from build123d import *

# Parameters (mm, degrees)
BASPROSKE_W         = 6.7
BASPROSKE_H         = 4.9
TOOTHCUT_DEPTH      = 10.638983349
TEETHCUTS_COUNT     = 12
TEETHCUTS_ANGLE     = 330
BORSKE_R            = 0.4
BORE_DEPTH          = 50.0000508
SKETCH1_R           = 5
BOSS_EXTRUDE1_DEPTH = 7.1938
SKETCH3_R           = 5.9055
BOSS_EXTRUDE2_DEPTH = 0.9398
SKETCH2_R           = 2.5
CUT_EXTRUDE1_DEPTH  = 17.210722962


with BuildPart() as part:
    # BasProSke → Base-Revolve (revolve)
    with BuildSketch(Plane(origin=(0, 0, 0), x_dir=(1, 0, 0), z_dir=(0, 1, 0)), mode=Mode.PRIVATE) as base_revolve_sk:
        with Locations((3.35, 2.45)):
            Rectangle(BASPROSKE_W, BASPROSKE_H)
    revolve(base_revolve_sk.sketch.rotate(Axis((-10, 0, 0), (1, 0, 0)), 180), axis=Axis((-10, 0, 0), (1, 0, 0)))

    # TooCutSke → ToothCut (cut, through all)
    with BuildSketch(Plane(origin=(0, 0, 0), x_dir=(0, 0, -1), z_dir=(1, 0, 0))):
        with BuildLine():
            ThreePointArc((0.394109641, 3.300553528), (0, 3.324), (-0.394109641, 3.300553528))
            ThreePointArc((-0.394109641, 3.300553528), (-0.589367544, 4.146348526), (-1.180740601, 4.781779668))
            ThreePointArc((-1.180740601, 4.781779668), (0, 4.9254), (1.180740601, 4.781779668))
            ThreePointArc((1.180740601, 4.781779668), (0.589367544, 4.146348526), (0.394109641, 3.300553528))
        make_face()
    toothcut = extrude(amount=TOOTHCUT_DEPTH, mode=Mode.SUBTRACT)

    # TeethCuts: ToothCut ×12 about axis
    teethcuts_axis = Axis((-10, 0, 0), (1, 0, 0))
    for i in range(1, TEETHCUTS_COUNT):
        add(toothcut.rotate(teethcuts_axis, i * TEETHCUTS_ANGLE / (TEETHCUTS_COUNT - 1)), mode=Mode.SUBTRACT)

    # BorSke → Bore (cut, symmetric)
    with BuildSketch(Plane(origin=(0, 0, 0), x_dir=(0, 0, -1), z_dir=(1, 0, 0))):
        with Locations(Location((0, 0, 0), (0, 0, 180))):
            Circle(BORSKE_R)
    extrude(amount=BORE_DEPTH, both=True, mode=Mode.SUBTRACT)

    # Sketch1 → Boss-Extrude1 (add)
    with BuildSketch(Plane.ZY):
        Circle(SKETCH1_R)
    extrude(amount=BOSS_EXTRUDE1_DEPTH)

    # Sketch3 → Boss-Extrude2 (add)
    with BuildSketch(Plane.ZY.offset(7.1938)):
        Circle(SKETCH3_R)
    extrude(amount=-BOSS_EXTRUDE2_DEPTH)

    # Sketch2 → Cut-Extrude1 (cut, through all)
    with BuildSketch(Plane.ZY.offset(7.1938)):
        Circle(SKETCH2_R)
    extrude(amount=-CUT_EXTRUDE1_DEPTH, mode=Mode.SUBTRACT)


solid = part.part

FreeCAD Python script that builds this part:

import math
import FreeCAD as App
import Part
import Sketcher

doc = App.newDocument("Part")
body = doc.addObject("PartDesign::Body", "Body")

# Sketch on XZ plane
sketch1 = body.newObject("Sketcher::SketchObject", "Sketch")
sketch1.AttachmentSupport = (doc.getObject("XZ_Plane"), [""])
sketch1.MapMode = "FlatFace"
sketch1.addGeometry([
    Part.LineSegment(App.Vector(0, -4.9, 0), App.Vector(0, 0, 0)),
    Part.LineSegment(App.Vector(0, 0, 0), App.Vector(6.7, 0, 0)),
    Part.LineSegment(App.Vector(6.7, 0, 0), App.Vector(6.7, -4.9, 0)),
    Part.LineSegment(App.Vector(6.7, -4.9, 0), App.Vector(0, -4.9, 0)),
], False)
sketch1.addConstraint([
    Sketcher.Constraint("Coincident", 0, 2, 1, 1),
    Sketcher.Constraint("Coincident", 1, 2, 2, 1),
    Sketcher.Constraint("Coincident", 2, 2, 3, 1),
    Sketcher.Constraint("Coincident", 3, 2, 0, 1),
    Sketcher.Constraint("Vertical", 0),
    Sketcher.Constraint("Horizontal", 1),
    Sketcher.Constraint("Vertical", 2),
    Sketcher.Constraint("Horizontal", 3),
    Sketcher.Constraint("Coincident", 0, 2, -1, 1),
    Sketcher.Constraint("DistanceX", 1, 1, 1, 2, 6.7),
    Sketcher.Constraint("DistanceY", 0, 1, 0, 2, 4.9),
])
revolution = body.newObject("PartDesign::Revolution", "Revolution")
revolution.Profile = sketch1
revolution.ReferenceAxis = (sketch1, ["H_Axis"])
revolution.Angle = 360

# Sketch on YZ plane
sketch2 = body.newObject("Sketcher::SketchObject", "Sketch001")
sketch2.AttachmentSupport = (doc.getObject("YZ_Plane"), [""])
sketch2.MapMode = "FlatFace"
sketch2.addGeometry([
    Part.ArcOfCircle(Part.Circle(App.Vector(0, 0, 0), App.Vector(0, 0, 1), 3.3), math.radians(-6.81), math.radians(6.81)),
    Part.ArcOfCircle(Part.Circle(App.Vector(3.4, -2.1, 0), App.Vector(0, 0, 1), 1.7), math.radians(32), math.radians(92)),
    Part.ArcOfCircle(Part.Circle(App.Vector(0, 0, 0), App.Vector(0, 0, 1), 4.9), math.radians(-14), math.radians(14)),
    Part.ArcOfCircle(Part.Circle(App.Vector(3.4, 2.1, 0), App.Vector(0, 0, 1), 1.7), math.radians(-92), math.radians(-32)),
], False)
sketch2.addConstraint([
    Sketcher.Constraint("Coincident", 0, 1, 1, 2),
    Sketcher.Constraint("Coincident", 1, 1, 2, 1),
    Sketcher.Constraint("Coincident", 2, 2, 3, 2),
    Sketcher.Constraint("Coincident", 3, 1, 0, 2),
    Sketcher.Constraint("Coincident", 0, 3, -1, 1),
    Sketcher.Constraint("Coincident", 2, 3, -1, 1),
    Sketcher.Constraint("Equal", 1, 3),
    Sketcher.Constraint("Symmetric", 1, 3, 3, 3, -1),
    Sketcher.Constraint("Radius", 1, 1.68),
    Sketcher.Constraint("Radius", 0, 3.324),
    Sketcher.Constraint("Radius", 2, 4.9254),
    Sketcher.Constraint("DistanceX", 1, 3, 1, 1, 1.423401),
    Sketcher.Constraint("DistanceX", -1, 1, 1, 3, 3.358379),
])
pocket1 = body.newObject("PartDesign::Pocket", "Pocket")
pocket1.Profile = sketch2
pocket1.Type = "ThroughAll"
pocket1.Reversed = True
doc.recompute()

polarpattern = body.newObject("PartDesign::PolarPattern", "PolarPattern")
polarpattern.Originals = [pocket1]
polarpattern.Axis = (doc.getObject("X_Axis"), [""])
polarpattern.Angle = 360
polarpattern.Occurrences = 12
body.Tip = polarpattern

# Sketch on YZ plane
sketch3 = body.newObject("Sketcher::SketchObject", "Sketch002")
sketch3.AttachmentSupport = (doc.getObject("YZ_Plane"), [""])
sketch3.MapMode = "FlatFace"
sketch3.addGeometry(Part.Circle(App.Vector(0, 0, 0), App.Vector(0, 0, 1), 0.4), False)
sketch3.addConstraint([
    Sketcher.Constraint("Coincident", 0, 3, -1, 1),
    Sketcher.Constraint("Diameter", 0, 0.8),
])
pocket2 = body.newObject("PartDesign::Pocket", "Pocket001")
pocket2.Profile = sketch3
pocket2.Length = 100.000102
pocket2.Midplane = True

# Sketch on YZ plane
sketch4 = body.newObject("Sketcher::SketchObject", "Sketch003")
sketch4.AttachmentSupport = (doc.getObject("YZ_Plane"), [""])
sketch4.MapMode = "FlatFace"
sketch4.addGeometry(Part.Circle(App.Vector(0, 0, 0), App.Vector(0, 0, 1), 5), False)
sketch4.addConstraint([
    Sketcher.Constraint("Coincident", 0, 3, -1, 1),
    Sketcher.Constraint("Diameter", 0, 10.0),
])
pad1 = body.newObject("PartDesign::Pad", "Pad")
pad1.Profile = sketch4
pad1.Length = 7.1938
pad1.Reversed = True

# Sketch on YZ plane
sketch5 = body.newObject("Sketcher::SketchObject", "Sketch004")
sketch5.AttachmentSupport = (doc.getObject("YZ_Plane"), [""])
sketch5.MapMode = "FlatFace"
sketch5.AttachmentOffset = App.Placement(App.Vector(0, 0, -7.1938), App.Rotation())
sketch5.addGeometry(Part.Circle(App.Vector(0, 0, 0), App.Vector(0, 0, 1), 6), False)
sketch5.addConstraint([
    Sketcher.Constraint("Coincident", 0, 3, -1, 1),
    Sketcher.Constraint("Diameter", 0, 11.811),
])
pad2 = body.newObject("PartDesign::Pad", "Pad001")
pad2.Profile = sketch5
pad2.Length = 0.9398

# Sketch on YZ plane
sketch6 = body.newObject("Sketcher::SketchObject", "Sketch005")
sketch6.AttachmentSupport = (doc.getObject("YZ_Plane"), [""])
sketch6.MapMode = "FlatFace"
sketch6.AttachmentOffset = App.Placement(App.Vector(0, 0, -7.1938), App.Rotation())
sketch6.addGeometry(Part.Circle(App.Vector(0, 0, 0), App.Vector(0, 0, 1), 2.5), False)
sketch6.addConstraint([
    Sketcher.Constraint("Coincident", 0, 3, -1, 1),
    Sketcher.Constraint("Diameter", 0, 5.0),
])
pocket3 = body.newObject("PartDesign::Pocket", "Pocket002")
pocket3.Profile = sketch6
pocket3.Type = "ThroughAll"
pocket3.Reversed = True

doc.recompute()
